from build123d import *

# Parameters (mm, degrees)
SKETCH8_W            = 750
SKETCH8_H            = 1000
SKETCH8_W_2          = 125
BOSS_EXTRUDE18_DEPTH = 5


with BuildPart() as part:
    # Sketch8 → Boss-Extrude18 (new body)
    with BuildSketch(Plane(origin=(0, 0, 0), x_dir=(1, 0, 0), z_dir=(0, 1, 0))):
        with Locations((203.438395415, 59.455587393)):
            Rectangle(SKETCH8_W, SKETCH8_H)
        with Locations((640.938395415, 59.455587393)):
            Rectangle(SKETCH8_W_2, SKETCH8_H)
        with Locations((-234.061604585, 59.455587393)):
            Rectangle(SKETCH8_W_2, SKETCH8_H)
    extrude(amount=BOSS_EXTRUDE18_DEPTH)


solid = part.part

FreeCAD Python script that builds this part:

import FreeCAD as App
import Part
import Sketcher

V = App.Vector
Q = App.Units.Quantity

doc = App.newDocument("Part")
body = doc.addObject("PartDesign::Body", "Body")

# Sketch on XZ plane
sketch1 = body.newObject("Sketcher::SketchObject", "Sketch")
sketch1.AttachmentSupport = (doc.getObject("XZ_Plane"), [""])
sketch1.MapMode = "FlatFace"
sketch1.addGeometry([
    Part.LineSegment(V(703, 441, 0), V(703, -559, 0)),
    Part.LineSegment(V(703, -559, 0), V(-297, -559, 0)),
    Part.LineSegment(V(-297, -559, 0), V(-297, 441, 0)),
    Part.LineSegment(V(-297, 441, 0), V(703, 441, 0)),
], False)
sketch1.addConstraint([
    Sketcher.Constraint("Coincident", 0, 2, 1, 1),
    Sketcher.Constraint("Coincident", 1, 2, 2, 1),
    Sketcher.Constraint("Coincident", 2, 2, 3, 1),
    Sketcher.Constraint("Coincident", 3, 2, 0, 1),
    Sketcher.Constraint("Vertical", 0),
    Sketcher.Constraint("Horizontal", 1),
    Sketcher.Constraint("Vertical", 2),
    Sketcher.Constraint("Horizontal", 3),
    Sketcher.Constraint("Equal", 3, 0),
    Sketcher.Constraint("DistanceX", 1, 2, 1, 1, Q("1000 mm")),
    Sketcher.Constraint("DistanceX", -1, 1, 0, 2, Q("703.438395 mm")),
    Sketcher.Constraint("DistanceY", 0, 2, -1, 1, Q("559.455587 mm")),
])
pad1 = body.newObject("PartDesign::Pad", "Pad")
pad1.Profile = sketch1
pad1.Length = 5
pad1.Reversed = True

doc.recompute()
